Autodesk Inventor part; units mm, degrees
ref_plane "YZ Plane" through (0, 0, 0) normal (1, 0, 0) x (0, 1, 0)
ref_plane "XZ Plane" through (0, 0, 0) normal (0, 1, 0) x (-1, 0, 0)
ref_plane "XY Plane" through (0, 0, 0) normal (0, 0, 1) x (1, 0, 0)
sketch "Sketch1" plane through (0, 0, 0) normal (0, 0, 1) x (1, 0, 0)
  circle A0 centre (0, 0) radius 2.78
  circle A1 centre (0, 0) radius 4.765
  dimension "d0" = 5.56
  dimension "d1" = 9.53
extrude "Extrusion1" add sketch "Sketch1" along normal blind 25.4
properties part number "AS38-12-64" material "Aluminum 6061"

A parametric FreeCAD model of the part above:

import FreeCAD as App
import Part
import Sketcher

V = App.Vector
Q = App.Units.Quantity

doc = App.newDocument("Part")
body = doc.addObject("PartDesign::Body", "Body")

sketch1 = body.newObject("Sketcher::SketchObject", "Sketch")
sketch1.AttachmentSupport = (doc.getObject("XY_Plane"), [""])
sketch1.MapMode = "FlatFace"
sketch1.addGeometry([
    Part.Circle(V(0, 0, 0), V(0, 0, 1), 4.765),
    Part.Circle(V(0, 0, 0), V(0, 0, 1), 2.78),
], False)
sketch1.addConstraint([
    Sketcher.Constraint("Coincident", 0, 3, -1, 1),
    Sketcher.Constraint("Coincident", 1, 3, -1, 1),
    Sketcher.Constraint("Diameter", 0, Q("0.3752 in")),
    Sketcher.Constraint("Diameter", 1, Q("0.2189 in")),
])
pad1 = body.newObject("PartDesign::Pad", "Pad")
pad1.Profile = sketch1
pad1.Length = Q("1 in")

doc.recompute()
